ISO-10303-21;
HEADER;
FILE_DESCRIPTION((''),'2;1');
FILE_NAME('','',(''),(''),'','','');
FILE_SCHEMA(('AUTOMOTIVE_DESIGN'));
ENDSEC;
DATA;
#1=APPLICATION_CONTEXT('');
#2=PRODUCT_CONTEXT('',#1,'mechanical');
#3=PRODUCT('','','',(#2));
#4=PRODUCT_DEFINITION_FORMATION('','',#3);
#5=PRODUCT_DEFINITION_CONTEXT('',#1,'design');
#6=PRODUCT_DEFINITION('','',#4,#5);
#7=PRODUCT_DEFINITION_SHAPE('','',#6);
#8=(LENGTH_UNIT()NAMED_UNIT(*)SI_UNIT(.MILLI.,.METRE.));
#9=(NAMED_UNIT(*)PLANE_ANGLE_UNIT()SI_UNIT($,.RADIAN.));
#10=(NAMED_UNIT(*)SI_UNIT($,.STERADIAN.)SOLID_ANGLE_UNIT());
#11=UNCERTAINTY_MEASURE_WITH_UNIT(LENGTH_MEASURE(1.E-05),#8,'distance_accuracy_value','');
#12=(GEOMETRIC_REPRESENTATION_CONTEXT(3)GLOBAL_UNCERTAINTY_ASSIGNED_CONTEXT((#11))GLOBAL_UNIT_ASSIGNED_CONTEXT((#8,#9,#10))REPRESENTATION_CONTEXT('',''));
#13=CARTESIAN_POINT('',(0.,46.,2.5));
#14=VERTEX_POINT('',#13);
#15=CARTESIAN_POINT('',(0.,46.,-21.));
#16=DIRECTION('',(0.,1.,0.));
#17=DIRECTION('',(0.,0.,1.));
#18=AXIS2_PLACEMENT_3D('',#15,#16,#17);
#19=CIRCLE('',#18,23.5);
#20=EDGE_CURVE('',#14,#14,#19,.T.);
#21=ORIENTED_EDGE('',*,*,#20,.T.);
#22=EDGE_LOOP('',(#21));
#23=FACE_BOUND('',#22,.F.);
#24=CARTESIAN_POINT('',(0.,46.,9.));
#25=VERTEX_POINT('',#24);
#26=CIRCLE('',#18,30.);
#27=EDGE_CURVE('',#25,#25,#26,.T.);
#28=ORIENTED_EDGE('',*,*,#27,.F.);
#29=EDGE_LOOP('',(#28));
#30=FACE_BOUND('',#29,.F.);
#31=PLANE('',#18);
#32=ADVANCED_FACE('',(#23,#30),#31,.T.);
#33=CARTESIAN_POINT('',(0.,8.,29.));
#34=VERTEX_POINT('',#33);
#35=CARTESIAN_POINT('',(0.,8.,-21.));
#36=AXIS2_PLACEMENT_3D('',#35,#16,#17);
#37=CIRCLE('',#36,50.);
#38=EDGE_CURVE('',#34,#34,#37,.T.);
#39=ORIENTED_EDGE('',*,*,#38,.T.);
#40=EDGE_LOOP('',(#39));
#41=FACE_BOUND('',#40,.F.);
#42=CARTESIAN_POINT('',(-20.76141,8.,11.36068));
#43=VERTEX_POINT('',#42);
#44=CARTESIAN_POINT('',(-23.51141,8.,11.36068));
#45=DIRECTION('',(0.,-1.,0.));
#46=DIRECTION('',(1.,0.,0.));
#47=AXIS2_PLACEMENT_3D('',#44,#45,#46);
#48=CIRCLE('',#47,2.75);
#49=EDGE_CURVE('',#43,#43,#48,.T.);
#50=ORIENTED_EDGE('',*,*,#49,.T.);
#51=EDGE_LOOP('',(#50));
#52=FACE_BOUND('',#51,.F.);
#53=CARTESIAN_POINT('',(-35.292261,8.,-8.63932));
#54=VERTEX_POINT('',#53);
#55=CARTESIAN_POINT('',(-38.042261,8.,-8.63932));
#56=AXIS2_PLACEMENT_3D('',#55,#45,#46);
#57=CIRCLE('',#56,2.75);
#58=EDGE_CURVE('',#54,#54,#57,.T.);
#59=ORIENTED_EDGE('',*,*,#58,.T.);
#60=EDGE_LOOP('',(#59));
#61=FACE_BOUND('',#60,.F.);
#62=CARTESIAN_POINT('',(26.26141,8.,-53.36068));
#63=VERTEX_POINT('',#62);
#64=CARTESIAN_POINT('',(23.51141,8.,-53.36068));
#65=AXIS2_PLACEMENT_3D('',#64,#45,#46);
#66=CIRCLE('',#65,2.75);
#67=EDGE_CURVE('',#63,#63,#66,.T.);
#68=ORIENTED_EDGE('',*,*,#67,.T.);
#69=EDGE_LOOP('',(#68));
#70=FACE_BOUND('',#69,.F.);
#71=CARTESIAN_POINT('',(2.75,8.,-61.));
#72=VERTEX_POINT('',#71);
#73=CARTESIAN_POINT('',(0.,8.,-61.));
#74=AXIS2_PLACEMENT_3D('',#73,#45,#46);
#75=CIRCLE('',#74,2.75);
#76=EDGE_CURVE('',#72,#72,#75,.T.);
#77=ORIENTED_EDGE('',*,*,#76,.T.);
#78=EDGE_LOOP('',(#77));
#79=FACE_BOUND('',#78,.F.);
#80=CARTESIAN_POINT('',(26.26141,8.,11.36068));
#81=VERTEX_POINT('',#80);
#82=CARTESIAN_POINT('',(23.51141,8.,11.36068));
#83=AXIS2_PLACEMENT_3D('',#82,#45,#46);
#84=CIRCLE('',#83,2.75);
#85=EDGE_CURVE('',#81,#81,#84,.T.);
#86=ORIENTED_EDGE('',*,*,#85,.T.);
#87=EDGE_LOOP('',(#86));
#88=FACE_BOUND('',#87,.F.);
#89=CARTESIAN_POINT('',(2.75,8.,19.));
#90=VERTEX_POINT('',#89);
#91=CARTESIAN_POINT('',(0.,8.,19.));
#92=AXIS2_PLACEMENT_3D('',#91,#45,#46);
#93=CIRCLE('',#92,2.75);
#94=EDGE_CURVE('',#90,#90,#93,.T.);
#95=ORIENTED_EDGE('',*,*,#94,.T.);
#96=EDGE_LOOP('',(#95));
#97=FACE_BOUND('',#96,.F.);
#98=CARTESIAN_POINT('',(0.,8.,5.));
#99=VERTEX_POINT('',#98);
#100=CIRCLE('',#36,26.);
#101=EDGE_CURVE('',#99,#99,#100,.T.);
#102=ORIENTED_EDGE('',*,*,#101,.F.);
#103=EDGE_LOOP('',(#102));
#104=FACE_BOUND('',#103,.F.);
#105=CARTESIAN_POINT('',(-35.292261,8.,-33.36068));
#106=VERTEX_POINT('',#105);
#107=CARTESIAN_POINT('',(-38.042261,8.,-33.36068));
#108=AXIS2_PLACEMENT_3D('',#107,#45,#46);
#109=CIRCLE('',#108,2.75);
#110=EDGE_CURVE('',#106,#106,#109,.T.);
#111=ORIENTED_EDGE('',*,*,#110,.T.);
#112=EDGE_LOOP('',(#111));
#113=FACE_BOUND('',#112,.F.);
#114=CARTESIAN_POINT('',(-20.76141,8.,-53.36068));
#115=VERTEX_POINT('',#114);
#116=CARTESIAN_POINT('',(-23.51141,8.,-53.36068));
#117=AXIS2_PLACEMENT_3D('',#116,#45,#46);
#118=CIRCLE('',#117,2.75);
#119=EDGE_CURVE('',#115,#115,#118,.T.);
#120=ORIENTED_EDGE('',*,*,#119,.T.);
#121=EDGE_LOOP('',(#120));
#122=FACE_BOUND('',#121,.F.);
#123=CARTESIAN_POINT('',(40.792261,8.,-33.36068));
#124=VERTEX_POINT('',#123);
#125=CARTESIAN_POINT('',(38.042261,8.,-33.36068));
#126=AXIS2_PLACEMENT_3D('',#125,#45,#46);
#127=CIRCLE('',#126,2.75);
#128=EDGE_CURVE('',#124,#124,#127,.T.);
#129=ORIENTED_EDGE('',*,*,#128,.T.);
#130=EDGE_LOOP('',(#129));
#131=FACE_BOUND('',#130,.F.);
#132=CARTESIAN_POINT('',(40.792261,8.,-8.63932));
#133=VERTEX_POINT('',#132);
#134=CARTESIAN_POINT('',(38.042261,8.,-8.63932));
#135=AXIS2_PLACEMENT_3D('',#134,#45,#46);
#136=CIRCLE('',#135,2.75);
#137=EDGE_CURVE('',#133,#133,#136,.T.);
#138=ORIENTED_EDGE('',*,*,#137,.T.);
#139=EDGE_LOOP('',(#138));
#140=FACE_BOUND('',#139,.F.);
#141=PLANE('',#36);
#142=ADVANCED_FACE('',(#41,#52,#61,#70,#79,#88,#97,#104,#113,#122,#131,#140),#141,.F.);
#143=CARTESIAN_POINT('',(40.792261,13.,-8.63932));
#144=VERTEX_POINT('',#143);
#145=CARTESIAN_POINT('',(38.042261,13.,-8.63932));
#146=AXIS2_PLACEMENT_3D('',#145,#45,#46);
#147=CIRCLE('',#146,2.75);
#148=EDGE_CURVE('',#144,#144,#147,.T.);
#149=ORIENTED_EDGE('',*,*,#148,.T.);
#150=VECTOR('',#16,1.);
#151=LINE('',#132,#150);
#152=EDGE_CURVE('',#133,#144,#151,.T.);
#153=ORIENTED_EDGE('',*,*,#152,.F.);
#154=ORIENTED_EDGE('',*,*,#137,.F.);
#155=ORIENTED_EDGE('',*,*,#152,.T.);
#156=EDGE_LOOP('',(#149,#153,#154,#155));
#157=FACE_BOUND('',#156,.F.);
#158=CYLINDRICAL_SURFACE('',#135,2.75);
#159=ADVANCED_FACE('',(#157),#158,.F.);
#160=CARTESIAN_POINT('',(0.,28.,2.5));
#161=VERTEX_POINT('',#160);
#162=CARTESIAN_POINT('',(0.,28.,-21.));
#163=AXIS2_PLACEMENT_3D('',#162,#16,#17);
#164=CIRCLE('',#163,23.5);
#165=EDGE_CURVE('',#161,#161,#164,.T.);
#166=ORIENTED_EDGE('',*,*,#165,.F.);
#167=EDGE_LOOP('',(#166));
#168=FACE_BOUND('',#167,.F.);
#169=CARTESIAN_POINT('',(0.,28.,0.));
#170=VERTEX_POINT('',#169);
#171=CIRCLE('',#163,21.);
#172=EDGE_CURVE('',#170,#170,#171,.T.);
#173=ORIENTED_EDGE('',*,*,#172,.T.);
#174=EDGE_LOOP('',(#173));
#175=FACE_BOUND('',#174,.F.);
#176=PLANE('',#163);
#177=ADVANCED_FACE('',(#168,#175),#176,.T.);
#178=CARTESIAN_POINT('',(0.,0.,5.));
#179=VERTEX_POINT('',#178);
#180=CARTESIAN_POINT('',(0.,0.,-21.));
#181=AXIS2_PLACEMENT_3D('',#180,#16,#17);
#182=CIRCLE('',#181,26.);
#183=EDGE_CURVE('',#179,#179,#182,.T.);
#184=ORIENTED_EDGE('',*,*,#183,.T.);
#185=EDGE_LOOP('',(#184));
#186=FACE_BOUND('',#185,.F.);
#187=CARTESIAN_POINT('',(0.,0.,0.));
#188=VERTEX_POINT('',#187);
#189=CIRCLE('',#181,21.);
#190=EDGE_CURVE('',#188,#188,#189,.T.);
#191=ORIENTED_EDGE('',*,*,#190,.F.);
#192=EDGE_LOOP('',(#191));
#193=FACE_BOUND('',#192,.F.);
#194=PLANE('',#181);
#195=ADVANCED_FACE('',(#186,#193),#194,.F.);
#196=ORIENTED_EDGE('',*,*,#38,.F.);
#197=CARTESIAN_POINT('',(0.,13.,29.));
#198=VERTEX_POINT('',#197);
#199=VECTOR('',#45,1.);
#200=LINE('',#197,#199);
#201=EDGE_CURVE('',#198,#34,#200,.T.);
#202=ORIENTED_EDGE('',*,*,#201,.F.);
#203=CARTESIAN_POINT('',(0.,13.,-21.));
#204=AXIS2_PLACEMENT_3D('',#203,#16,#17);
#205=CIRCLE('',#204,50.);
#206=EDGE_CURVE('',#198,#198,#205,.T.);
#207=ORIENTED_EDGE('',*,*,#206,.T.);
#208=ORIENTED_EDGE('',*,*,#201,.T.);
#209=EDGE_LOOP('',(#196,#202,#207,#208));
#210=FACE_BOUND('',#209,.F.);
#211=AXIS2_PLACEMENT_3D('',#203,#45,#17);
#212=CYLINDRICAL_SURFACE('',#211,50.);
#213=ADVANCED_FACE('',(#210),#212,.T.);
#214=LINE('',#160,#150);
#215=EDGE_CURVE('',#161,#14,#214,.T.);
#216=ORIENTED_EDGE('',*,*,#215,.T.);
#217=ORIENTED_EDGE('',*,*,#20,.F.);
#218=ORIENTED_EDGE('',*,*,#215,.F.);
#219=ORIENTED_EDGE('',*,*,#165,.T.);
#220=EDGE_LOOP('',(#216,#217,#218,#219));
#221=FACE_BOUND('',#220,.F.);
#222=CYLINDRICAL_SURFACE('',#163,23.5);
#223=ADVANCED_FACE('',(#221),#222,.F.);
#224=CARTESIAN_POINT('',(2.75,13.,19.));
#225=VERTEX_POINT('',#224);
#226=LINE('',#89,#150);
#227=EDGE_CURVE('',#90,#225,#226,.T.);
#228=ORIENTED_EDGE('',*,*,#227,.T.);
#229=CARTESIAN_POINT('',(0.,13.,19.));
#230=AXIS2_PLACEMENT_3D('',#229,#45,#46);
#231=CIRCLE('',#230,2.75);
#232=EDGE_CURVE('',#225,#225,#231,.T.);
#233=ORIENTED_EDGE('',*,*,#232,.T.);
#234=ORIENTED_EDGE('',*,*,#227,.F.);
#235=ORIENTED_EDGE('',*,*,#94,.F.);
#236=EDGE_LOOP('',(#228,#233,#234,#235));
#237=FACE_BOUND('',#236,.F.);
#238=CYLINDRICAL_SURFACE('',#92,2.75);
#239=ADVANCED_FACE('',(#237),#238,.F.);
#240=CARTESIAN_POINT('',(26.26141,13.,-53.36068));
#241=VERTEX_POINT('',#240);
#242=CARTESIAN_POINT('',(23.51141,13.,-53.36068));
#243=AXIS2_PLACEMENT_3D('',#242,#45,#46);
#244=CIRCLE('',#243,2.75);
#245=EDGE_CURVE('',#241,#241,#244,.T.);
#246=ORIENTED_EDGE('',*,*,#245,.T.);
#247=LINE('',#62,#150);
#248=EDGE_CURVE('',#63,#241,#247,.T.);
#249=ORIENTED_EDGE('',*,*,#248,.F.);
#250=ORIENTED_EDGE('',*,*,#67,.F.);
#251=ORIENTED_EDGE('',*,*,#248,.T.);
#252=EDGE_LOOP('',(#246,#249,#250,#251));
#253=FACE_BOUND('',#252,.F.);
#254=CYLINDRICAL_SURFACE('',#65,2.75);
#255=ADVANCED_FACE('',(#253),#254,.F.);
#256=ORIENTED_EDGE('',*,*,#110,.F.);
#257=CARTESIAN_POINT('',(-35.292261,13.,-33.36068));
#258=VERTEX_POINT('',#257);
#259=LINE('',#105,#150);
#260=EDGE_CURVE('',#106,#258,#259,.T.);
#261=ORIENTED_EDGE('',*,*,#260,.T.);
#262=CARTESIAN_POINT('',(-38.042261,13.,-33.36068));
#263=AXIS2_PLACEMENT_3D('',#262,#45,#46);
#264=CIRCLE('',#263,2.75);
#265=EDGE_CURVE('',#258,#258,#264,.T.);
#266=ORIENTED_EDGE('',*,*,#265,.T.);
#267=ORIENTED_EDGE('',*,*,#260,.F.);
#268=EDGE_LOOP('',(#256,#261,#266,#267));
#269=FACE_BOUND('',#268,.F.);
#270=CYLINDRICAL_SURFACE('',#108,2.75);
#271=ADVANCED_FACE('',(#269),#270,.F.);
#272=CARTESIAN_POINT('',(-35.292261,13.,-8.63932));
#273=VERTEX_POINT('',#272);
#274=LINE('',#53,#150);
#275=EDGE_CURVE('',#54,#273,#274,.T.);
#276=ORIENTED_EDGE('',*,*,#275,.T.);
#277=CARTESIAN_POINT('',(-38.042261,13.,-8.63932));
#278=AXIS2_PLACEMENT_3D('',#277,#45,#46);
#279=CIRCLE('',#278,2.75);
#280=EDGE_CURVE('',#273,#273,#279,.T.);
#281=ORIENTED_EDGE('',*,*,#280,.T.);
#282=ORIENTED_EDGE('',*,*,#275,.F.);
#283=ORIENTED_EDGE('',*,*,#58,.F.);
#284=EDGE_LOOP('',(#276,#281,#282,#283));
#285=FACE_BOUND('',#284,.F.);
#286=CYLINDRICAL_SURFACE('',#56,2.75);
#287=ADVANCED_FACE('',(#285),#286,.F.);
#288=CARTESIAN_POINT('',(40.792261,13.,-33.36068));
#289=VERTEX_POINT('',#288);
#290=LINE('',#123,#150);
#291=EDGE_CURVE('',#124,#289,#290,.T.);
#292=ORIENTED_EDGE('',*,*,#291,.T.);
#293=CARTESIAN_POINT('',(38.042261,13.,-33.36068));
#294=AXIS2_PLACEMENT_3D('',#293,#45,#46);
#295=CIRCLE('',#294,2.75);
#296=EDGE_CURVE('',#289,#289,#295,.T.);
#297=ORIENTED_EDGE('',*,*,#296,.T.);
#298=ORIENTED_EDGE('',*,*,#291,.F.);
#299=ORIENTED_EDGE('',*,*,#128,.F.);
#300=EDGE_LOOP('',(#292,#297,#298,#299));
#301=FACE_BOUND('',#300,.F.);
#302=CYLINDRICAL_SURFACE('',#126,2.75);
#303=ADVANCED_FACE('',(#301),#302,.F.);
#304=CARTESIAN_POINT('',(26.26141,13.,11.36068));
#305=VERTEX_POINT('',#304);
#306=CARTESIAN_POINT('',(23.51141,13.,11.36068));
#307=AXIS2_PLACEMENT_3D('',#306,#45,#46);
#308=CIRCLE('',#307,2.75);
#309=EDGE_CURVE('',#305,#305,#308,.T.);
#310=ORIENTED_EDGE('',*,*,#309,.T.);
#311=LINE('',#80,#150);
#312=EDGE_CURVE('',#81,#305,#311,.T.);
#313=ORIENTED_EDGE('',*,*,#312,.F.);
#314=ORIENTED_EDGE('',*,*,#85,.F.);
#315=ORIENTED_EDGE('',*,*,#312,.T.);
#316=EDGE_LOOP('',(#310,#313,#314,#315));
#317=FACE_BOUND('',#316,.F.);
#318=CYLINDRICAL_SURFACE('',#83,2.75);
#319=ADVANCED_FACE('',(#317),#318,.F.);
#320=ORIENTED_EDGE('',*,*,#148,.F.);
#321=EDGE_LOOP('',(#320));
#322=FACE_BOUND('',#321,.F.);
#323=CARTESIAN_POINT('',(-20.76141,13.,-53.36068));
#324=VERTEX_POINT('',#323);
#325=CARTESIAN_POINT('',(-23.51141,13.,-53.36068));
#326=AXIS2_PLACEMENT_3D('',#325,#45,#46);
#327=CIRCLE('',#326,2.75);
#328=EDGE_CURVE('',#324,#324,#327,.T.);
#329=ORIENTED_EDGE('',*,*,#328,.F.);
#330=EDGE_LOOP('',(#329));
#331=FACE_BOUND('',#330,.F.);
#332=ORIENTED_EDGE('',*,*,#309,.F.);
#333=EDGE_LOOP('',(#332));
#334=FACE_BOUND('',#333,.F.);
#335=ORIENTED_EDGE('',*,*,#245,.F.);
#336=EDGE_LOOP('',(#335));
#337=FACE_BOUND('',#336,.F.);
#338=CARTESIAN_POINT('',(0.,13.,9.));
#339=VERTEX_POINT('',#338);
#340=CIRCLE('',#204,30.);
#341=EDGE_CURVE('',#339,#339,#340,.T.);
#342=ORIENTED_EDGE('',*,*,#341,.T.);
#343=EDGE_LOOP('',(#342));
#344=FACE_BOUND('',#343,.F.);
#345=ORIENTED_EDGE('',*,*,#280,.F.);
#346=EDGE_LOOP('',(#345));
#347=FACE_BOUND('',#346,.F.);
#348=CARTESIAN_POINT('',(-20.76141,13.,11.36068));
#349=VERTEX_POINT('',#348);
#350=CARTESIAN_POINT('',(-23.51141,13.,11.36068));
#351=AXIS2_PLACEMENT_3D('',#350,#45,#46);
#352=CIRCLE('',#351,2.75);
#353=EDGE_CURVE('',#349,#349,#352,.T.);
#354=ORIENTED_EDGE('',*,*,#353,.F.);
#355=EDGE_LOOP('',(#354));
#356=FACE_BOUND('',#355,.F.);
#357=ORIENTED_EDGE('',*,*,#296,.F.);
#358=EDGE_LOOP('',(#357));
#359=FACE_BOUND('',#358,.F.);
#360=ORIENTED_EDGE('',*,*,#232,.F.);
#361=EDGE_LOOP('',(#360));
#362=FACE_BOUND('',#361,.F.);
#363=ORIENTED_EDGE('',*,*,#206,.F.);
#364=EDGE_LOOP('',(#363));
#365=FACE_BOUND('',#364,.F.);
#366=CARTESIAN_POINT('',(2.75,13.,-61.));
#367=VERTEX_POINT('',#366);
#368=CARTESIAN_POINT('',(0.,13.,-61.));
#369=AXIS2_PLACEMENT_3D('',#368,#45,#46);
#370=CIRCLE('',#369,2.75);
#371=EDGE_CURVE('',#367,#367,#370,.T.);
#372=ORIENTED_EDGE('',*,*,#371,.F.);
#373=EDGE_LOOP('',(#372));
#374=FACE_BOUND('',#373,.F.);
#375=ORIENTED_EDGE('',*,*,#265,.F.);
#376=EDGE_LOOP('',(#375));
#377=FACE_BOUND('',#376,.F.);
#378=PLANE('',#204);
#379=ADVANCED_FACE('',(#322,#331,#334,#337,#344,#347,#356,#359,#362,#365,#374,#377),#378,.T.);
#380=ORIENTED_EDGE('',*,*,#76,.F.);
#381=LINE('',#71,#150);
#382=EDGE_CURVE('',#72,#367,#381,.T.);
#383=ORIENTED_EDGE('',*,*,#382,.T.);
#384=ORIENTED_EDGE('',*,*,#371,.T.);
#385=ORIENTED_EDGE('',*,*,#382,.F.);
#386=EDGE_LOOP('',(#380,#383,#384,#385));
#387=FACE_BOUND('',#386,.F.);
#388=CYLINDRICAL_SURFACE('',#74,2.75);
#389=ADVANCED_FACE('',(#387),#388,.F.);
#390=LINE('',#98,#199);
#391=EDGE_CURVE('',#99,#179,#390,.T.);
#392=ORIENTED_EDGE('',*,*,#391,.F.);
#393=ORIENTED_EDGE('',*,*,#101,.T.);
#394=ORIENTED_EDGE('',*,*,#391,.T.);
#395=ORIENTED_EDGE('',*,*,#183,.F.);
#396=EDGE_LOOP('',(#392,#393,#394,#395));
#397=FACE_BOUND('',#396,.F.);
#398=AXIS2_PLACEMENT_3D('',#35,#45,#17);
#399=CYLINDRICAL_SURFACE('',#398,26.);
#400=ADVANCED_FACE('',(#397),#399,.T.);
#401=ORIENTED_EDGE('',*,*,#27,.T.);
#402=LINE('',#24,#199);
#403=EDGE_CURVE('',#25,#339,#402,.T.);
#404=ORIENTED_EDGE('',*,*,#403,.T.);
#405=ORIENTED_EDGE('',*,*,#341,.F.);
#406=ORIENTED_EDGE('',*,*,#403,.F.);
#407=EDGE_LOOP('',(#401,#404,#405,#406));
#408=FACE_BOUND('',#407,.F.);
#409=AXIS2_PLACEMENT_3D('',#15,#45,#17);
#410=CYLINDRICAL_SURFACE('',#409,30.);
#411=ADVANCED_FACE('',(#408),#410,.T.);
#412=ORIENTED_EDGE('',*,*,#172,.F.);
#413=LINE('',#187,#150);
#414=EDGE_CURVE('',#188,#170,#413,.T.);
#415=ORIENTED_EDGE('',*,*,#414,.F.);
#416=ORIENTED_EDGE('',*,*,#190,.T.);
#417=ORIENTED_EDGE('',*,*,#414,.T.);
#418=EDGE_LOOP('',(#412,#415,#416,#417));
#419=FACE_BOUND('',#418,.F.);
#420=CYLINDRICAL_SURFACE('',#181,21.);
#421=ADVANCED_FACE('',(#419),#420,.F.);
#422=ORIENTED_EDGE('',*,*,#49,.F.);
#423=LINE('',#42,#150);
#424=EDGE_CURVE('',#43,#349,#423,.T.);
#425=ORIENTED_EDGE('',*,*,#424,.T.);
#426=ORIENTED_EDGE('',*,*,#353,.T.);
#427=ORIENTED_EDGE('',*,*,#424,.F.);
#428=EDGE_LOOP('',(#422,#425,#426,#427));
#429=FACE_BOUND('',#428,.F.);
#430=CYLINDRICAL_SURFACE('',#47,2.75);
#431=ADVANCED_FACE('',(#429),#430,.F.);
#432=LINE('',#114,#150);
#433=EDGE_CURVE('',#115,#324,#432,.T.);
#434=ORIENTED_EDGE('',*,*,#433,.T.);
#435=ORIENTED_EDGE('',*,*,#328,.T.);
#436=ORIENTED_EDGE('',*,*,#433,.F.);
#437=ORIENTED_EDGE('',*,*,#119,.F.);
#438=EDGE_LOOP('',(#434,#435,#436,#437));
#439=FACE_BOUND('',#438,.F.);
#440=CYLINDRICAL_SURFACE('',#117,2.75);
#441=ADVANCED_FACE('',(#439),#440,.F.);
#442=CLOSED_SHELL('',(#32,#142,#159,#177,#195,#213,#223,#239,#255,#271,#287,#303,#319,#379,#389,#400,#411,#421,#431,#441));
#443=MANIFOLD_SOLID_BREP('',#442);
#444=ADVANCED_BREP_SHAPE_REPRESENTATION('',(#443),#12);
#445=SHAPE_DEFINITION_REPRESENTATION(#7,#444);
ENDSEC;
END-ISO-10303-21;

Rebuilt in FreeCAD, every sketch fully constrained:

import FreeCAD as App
import Part
import Sketcher
from FreeCAD import Vector


def add_polygon(sketch, points):
    """Adds a closed chain of lines whose ends are joined by coincident constraints."""
    first, n = sketch.GeometryCount, len(points)
    for a, b in zip(points, points[1:] + points[:1]):
        sketch.addGeometry(Part.LineSegment(App.Vector(*a, 0), App.Vector(*b, 0)), False)
    for i in range(n):
        sketch.addConstraint(Sketcher.Constraint("Coincident", first + i, 2, first + (i + 1) % n, 1))

doc = App.newDocument("Part")
body = doc.addObject("PartDesign::Body", "Body")

# Sketch on YZ plane
sketch1 = body.newObject("Sketcher::SketchObject", "Sketch")
sketch1.AttachmentSupport = (doc.getObject("YZ_Plane"), [""])
sketch1.MapMode = "FlatFace"
add_polygon(sketch1, [(46, 2.5), (46, 9), (13, 9), (13, 29), (8, 29), (8, 5), (0, 5), (0, 0), (28, 0), (28, 2.5)])  # lines 0-9
sketch1.addGeometry(Part.LineSegment(Vector(0, -21, 0), Vector(46, -21, 0)), True)  # axis
sketch1.addConstraint([
    Sketcher.Constraint("Vertical", 0),
    Sketcher.Constraint("Horizontal", 1),
    Sketcher.Constraint("Vertical", 2),
    Sketcher.Constraint("Horizontal", 3),
    Sketcher.Constraint("Vertical", 4),
    Sketcher.Constraint("Horizontal", 5),
    Sketcher.Constraint("Vertical", 6),
    Sketcher.Constraint("Horizontal", 7),
    Sketcher.Constraint("Vertical", 8),
    Sketcher.Constraint("Horizontal", 9),
    Sketcher.Constraint("Horizontal", 10),
    Sketcher.Constraint("Coincident", 6, 2, -1, 1),
    Sketcher.Constraint("PointOnObject", 10, 1, -2),
    Sketcher.Constraint("Vertical", 9, 2, 10, 2),
    Sketcher.Constraint("Equal", 3, 6),
    Sketcher.Constraint("DistanceX", 1, 2, 1, 1, 33.0),
    Sketcher.Constraint("DistanceX", 3, 2, 3, 1, 5.0),
    Sketcher.Constraint("DistanceX", 5, 2, 5, 1, 8.0),
    Sketcher.Constraint("DistanceX", 7, 1, 7, 2, 28.0),
    Sketcher.Constraint("DistanceY", 2, 1, 2, 2, 20.0),
    Sketcher.Constraint("DistanceY", 4, 2, 4, 1, 24.0),
    Sketcher.Constraint("DistanceY", 0, 1, 0, 2, 6.5),
    Sketcher.Constraint("DistanceY", 10, 1, -1, 1, 21.0),
])
revolution = body.newObject("PartDesign::Revolution", "Revolution")
revolution.Profile = sketch1
revolution.ReferenceAxis = (sketch1, ["Axis0"])
revolution.Angle = 360

# Sketch on XZ plane
sketch2 = body.newObject("Sketcher::SketchObject", "Sketch001")
sketch2.AttachmentSupport = (doc.getObject("XZ_Plane"), [""])
sketch2.MapMode = "FlatFace"
sketch2.AttachmentOffset = App.Placement(Vector(0, 0, -8), App.Rotation())
sketch2.addGeometry([
    Part.Circle(Vector(-23.51141, 11.36068, 0), Vector(0, 0, 1), 2.75),  # 0
    Part.Circle(Vector(-38.042261, -8.63932, 0), Vector(0, 0, 1), 2.75),  # 1
    Part.Circle(Vector(-38.042261, -33.36068, 0), Vector(0, 0, 1), 2.75),  # 2
    Part.Circle(Vector(-23.51141, -53.36068, 0), Vector(0, 0, 1), 2.75),  # 3
    Part.Circle(Vector(0, -61, 0), Vector(0, 0, 1), 2.75),  # 4
    Part.Circle(Vector(23.51141, -53.36068, 0), Vector(0, 0, 1), 2.75),  # 5
    Part.Circle(Vector(38.042261, -33.36068, 0), Vector(0, 0, 1), 2.75),  # 6
    Part.Circle(Vector(38.042261, -8.63932, 0), Vector(0, 0, 1), 2.75),  # 7
    Part.Circle(Vector(23.51141, 11.36068, 0), Vector(0, 0, 1), 2.75),  # 8
    Part.Circle(Vector(0, 19, 0), Vector(0, 0, 1), 2.75),  # 9
], False)
sketch2.addConstraint([
    Sketcher.Constraint("Equal", 0, 1),
    Sketcher.Constraint("Equal", 1, 2),
    Sketcher.Constraint("Equal", 2, 3),
    Sketcher.Constraint("Equal", 3, 4),
    Sketcher.Constraint("Equal", 4, 5),
    Sketcher.Constraint("Equal", 5, 6),
    Sketcher.Constraint("Equal", 6, 7),
    Sketcher.Constraint("Equal", 7, 8),
    Sketcher.Constraint("Equal", 8, 9),
    Sketcher.Constraint("Symmetric", 3, 3, 5, 3, -2),
    Sketcher.Constraint("Symmetric", 2, 3, 6, 3, -2),
    Sketcher.Constraint("Symmetric", 1, 3, 7, 3, -2),
    Sketcher.Constraint("Symmetric", 0, 3, 8, 3, -2),
    Sketcher.Constraint("PointOnObject", 4, 3, -2),
    Sketcher.Constraint("PointOnObject", 9, 3, -2),
    Sketcher.Constraint("Vertical", 1, 3, 2, 3),
    Sketcher.Constraint("Vertical", 0, 3, 3, 3),
    Sketcher.Constraint("Diameter", 0, 5.5),
    Sketcher.Constraint("DistanceY", 4, 3, -1, 1, 61.0),
    Sketcher.Constraint("DistanceY", -1, 1, 9, 3, 19.0),
    Sketcher.Constraint("DistanceY", 1, 3, 0, 3, 20.0),
    Sketcher.Constraint("DistanceY", 3, 3, 2, 3, 20.0),
    Sketcher.Constraint("DistanceX", 0, 3, -1, 1, 23.51141),
    Sketcher.Constraint("DistanceY", -1, 1, 0, 3, 11.36068),
    Sketcher.Constraint("DistanceX", 1, 3, -1, 1, 38.042261),
    Sketcher.Constraint("DistanceY", 2, 3, -1, 1, 33.36068),
])
pocket1 = body.newObject("PartDesign::Pocket", "Pocket")
pocket1.Profile = sketch2
pocket1.Length = 25

doc.recompute()
